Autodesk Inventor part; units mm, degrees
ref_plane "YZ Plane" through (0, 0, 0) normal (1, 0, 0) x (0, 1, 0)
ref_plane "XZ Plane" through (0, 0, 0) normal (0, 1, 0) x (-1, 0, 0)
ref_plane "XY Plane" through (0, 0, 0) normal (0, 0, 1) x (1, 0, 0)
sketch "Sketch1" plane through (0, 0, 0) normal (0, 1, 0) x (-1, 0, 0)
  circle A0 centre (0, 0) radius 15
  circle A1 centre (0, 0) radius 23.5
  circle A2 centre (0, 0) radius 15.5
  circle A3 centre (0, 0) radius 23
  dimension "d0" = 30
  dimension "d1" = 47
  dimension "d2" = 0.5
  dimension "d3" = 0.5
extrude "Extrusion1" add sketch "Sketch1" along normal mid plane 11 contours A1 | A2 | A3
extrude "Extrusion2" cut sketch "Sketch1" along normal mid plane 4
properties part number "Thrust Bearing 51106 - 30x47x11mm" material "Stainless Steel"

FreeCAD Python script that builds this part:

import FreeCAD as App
import Part
import Sketcher
from FreeCAD import Vector

doc = App.newDocument("Part")
body = doc.addObject("PartDesign::Body", "Body")

sketch1 = body.newObject("Sketcher::SketchObject", "Sketch")
sketch1.AttachmentSupport = (doc.getObject("XZ_Plane"), [""])
sketch1.MapMode = "FlatFace"
sketch1.addGeometry(Part.Circle(Vector(0, 0, 0), Vector(0, 0, 1), 24), False)
sketch1.addGeometry(Part.Circle(Vector(0, 0, 0), Vector(0, 0, 1), 15), False)
sketch1.addConstraint(Sketcher.Constraint("Coincident", 0, 3, -1, 1))
sketch1.addConstraint(Sketcher.Constraint("Coincident", 1, 3, -1, 1))
sketch1.addConstraint(Sketcher.Constraint("Diameter", 0, 47.0))
sketch1.addConstraint(Sketcher.Constraint("Diameter", 1, 30.0))
pad1 = body.newObject("PartDesign::Pad", "Pad")
pad1.Profile = sketch1
pad1.Length = 11
pad1.Midplane = True

sketch2 = body.newObject("Sketcher::SketchObject", "Sketch001")
sketch2.AttachmentSupport = (doc.getObject("XZ_Plane"), [""])
sketch2.MapMode = "FlatFace"
sketch2.addGeometry(Part.Circle(Vector(0, 0, 0), Vector(0, 0, 1), 24), False)
sketch2.addGeometry(Part.Circle(Vector(0, 0, 0), Vector(0, 0, 1), 23), False)
sketch2.addGeometry(Part.Circle(Vector(0, 0, 0), Vector(0, 0, 1), 16), False)
sketch2.addGeometry(Part.Circle(Vector(0, 0, 0), Vector(0, 0, 1), 15), False)
sketch2.addConstraint(Sketcher.Constraint("Coincident", 0, 3, -1, 1))
sketch2.addConstraint(Sketcher.Constraint("Coincident", 1, 3, -1, 1))
sketch2.addConstraint(Sketcher.Constraint("Coincident", 2, 3, -1, 1))
sketch2.addConstraint(Sketcher.Constraint("Coincident", 3, 3, -1, 1))
sketch2.addConstraint(Sketcher.Constraint("Diameter", 0, 47.0))
sketch2.addConstraint(Sketcher.Constraint("Diameter", 3, 30.0))
sketch2.addConstraint(Sketcher.Constraint("Diameter", 1, 46.0))
sketch2.addConstraint(Sketcher.Constraint("Diameter", 2, 31.0))
pocket1 = body.newObject("PartDesign::Pocket", "Pocket")
pocket1.Profile = sketch2
pocket1.Length = 4
pocket1.Midplane = True

doc.recompute()
